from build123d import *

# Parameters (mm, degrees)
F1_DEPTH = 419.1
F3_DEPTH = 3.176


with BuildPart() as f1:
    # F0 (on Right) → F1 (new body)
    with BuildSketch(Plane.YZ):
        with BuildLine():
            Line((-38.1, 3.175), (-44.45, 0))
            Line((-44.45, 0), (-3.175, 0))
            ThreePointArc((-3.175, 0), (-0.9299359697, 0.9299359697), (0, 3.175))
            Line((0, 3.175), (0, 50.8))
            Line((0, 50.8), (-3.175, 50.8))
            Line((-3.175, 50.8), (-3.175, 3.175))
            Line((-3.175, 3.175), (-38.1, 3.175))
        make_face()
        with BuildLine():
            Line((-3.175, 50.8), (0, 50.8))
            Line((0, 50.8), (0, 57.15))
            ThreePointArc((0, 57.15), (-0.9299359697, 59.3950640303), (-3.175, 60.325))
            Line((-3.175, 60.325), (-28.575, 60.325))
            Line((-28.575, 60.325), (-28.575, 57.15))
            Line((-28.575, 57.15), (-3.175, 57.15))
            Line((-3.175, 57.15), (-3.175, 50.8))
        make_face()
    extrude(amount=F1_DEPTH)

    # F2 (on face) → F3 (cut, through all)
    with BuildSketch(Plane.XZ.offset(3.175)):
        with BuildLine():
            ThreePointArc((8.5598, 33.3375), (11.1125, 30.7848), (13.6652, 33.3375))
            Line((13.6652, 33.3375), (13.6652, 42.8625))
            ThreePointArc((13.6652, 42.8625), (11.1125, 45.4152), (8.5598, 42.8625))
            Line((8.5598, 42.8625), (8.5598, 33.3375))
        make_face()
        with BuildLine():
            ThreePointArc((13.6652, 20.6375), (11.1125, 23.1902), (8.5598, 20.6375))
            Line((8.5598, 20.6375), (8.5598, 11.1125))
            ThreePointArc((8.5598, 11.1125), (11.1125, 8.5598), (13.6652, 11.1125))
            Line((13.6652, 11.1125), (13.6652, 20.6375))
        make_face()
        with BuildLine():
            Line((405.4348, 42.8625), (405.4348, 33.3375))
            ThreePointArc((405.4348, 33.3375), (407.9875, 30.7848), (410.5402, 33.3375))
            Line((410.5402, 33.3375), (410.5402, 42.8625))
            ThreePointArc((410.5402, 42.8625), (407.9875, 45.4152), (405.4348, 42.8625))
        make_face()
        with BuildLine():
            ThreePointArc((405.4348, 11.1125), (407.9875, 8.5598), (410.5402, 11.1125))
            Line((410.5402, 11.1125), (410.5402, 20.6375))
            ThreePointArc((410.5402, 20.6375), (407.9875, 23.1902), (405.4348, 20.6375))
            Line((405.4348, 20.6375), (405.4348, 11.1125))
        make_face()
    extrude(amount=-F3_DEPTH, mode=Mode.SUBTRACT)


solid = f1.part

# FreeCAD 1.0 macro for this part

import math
import FreeCAD as App
import Part
import Sketcher
Q = App.Units.Quantity

doc = App.newDocument("Part")
params = doc.addObject("Spreadsheet::Sheet", "Params")
for row, (alias, value) in enumerate([
    ("sketch1_width", "1 in"),
    ("sketch1_radius", "0.125 in"),
    ("sketch1_width2", "1.625 in"),
    ("sketch1_height", "2.125 in"),
    ("pad1_length", "16.5 in"),
    ("sketch2_height", "0.375 in"),
], start=1):
    params.set(f"A{row}", alias)
    params.set(f"B{row}", "=" + value)
    params.setAlias(f"B{row}", alias)

body = doc.addObject("PartDesign::Body", "Body")

# Sketch on YZ plane
sketch1 = doc.addObject("Sketcher::SketchObject", "Sketch")
body.addObject(sketch1)
sketch1.AttachmentSupport = (doc.YZ_Plane, [""])
sketch1.MapMode = "FlatFace"
sketch1.addGeometry([
    Part.LineSegment(App.Vector(-38.1, 3.2, 0), App.Vector(-44.5, 0, 0)),  # 0
    Part.LineSegment(App.Vector(-44.5, 0, 0), App.Vector(-3.2, 0, 0)),  # 1
    Part.ArcOfCircle(Part.Circle(App.Vector(-3.2, 3.2, 0), App.Vector(0, 0, 1), 3.2), math.radians(-90), math.radians(0)),  # 2
    Part.LineSegment(App.Vector(0, 3.2, 0), App.Vector(0, 57.1, 0)),  # 3
    Part.ArcOfCircle(Part.Circle(App.Vector(-3.2, 57.1, 0), App.Vector(0, 0, 1), 3.2), math.radians(0), math.radians(90)),  # 4
    Part.LineSegment(App.Vector(-3.2, 60.3, 0), App.Vector(-28.6, 60.3, 0)),  # 5
    Part.LineSegment(App.Vector(-28.6, 60.3, 0), App.Vector(-28.6, 57.1, 0)),  # 6
    Part.LineSegment(App.Vector(-28.6, 57.1, 0), App.Vector(-3.2, 57.1, 0)),  # 7
    Part.LineSegment(App.Vector(-3.2, 57.1, 0), App.Vector(-3.2, 3.2, 0)),  # 8
    Part.LineSegment(App.Vector(-3.2, 3.2, 0), App.Vector(-38.1, 3.2, 0)),  # 9
], False)
sketch1.addConstraint([
    Sketcher.Constraint("Coincident", 0, 2, 1, 1),
    Sketcher.Constraint("Tangent", 1, 2, 2, 1),
    Sketcher.Constraint("Tangent", 2, 2, 3, 1),
    Sketcher.Constraint("Tangent", 3, 2, 4, 1),
    Sketcher.Constraint("Tangent", 4, 2, 5, 1),
    Sketcher.Constraint("Coincident", 5, 2, 6, 1),
    Sketcher.Constraint("Coincident", 6, 2, 7, 1),
    Sketcher.Constraint("Coincident", 7, 2, 8, 1),
    Sketcher.Constraint("Coincident", 8, 2, 9, 1),
    Sketcher.Constraint("Coincident", 9, 2, 0, 1),
    Sketcher.Constraint("Horizontal", 1),
    Sketcher.Constraint("Vertical", 3),
    Sketcher.Constraint("Horizontal", 5),
    Sketcher.Constraint("Vertical", 6),
    Sketcher.Constraint("Horizontal", 7),
    Sketcher.Constraint("Vertical", 8),
    Sketcher.Constraint("Horizontal", 9),
    Sketcher.Constraint("Coincident", 7, 2, 4, 3),
    Sketcher.Constraint("Coincident", 8, 2, 2, 3),
    Sketcher.Constraint("PointOnObject", 0, 2, -1),
    Sketcher.Constraint("PointOnObject", 2, 2, -2),
    Sketcher.Constraint("DistanceX", 5, 2, 5, 1, Q("1 in")),
    Sketcher.Constraint("Radius", 2, Q("0.125 in")),
    Sketcher.Constraint("DistanceX", 9, 2, -1, 1, Q("1.5 in")),
    Sketcher.Constraint("DistanceX", 1, 1, 1, 2, Q("1.625 in")),
    Sketcher.Constraint("DistanceY", 3, 1, 3, 2, Q("2.125 in")),
])
sketch1.setExpression("Constraints[21]", "Params.sketch1_width")
sketch1.setExpression("Constraints[22]", "Params.sketch1_radius")
sketch1.setExpression("Constraints[24]", "Params.sketch1_width2")
sketch1.setExpression("Constraints[25]", "Params.sketch1_height")
pad1 = doc.addObject("PartDesign::Pad", "Pad")
body.addObject(pad1)
pad1.Profile = sketch1
pad1.setExpression("Length", "Params.pad1_length")

# Sketch on XZ plane
sketch2 = doc.addObject("Sketcher::SketchObject", "Sketch001")
body.addObject(sketch2)
sketch2.AttachmentSupport = (doc.XZ_Plane, [""])
sketch2.MapMode = "FlatFace"
sketch2.AttachmentOffset = App.Placement(App.Vector(0, 0, 0.125 * 25.4), App.Rotation())
sketch2.addGeometry([
    Part.ArcOfCircle(Part.Circle(App.Vector(11.1, 33.3, 0), App.Vector(0, 0, 1), 2.6), math.radians(180), math.radians(360)),  # 0
    Part.LineSegment(App.Vector(13.7, 33.3, 0), App.Vector(13.7, 42.9, 0)),  # 1
    Part.ArcOfCircle(Part.Circle(App.Vector(11.1, 42.9, 0), App.Vector(0, 0, 1), 2.6), math.radians(0), math.radians(180)),  # 2
    Part.LineSegment(App.Vector(8.6, 42.9, 0), App.Vector(8.6, 33.3, 0)),  # 3
    Part.ArcOfCircle(Part.Circle(App.Vector(11.1, 20.6, 0), App.Vector(0, 0, 1), 2.6), math.radians(0), math.radians(180)),  # 4
    Part.LineSegment(App.Vector(8.6, 20.6, 0), App.Vector(8.6, 11.1, 0)),  # 5
    Part.ArcOfCircle(Part.Circle(App.Vector(11.1, 11.1, 0), App.Vector(0, 0, 1), 2.6), math.radians(180), math.radians(360)),  # 6
    Part.LineSegment(App.Vector(13.7, 11.1, 0), App.Vector(13.7, 20.6, 0)),  # 7
    Part.LineSegment(App.Vector(405.4, 42.9, 0), App.Vector(405.4, 33.3, 0)),  # 8
    Part.ArcOfCircle(Part.Circle(App.Vector(408, 33.3, 0), App.Vector(0, 0, 1), 2.6), math.radians(180), math.radians(360)),  # 9
    Part.LineSegment(App.Vector(410.5, 33.3, 0), App.Vector(410.5, 42.9, 0)),  # 10
    Part.ArcOfCircle(Part.Circle(App.Vector(408, 42.9, 0), App.Vector(0, 0, 1), 2.6), math.radians(0), math.radians(180)),  # 11
    Part.ArcOfCircle(Part.Circle(App.Vector(408, 11.1, 0), App.Vector(0, 0, 1), 2.6), math.radians(180), math.radians(360)),  # 12
    Part.LineSegment(App.Vector(410.5, 11.1, 0), App.Vector(410.5, 20.6, 0)),  # 13
    Part.ArcOfCircle(Part.Circle(App.Vector(408, 20.6, 0), App.Vector(0, 0, 1), 2.6), math.radians(0), math.radians(180)),  # 14
    Part.LineSegment(App.Vector(405.4, 20.6, 0), App.Vector(405.4, 11.1, 0)),  # 15
], False)
sketch2.addConstraint([
    Sketcher.Constraint("Tangent", 0, 2, 1, 1),
    Sketcher.Constraint("Tangent", 1, 2, 2, 1),
    Sketcher.Constraint("Tangent", 2, 2, 3, 1),
    Sketcher.Constraint("Tangent", 3, 2, 0, 1),
    Sketcher.Constraint("Tangent", 4, 2, 5, 1),
    Sketcher.Constraint("Tangent", 5, 2, 6, 1),
    Sketcher.Constraint("Tangent", 6, 2, 7, 1),
    Sketcher.Constraint("Tangent", 7, 2, 4, 1),
    Sketcher.Constraint("Tangent", 8, 2, 9, 1),
    Sketcher.Constraint("Tangent", 9, 2, 10, 1),
    Sketcher.Constraint("Tangent", 10, 2, 11, 1),
    Sketcher.Constraint("Tangent", 11, 2, 8, 1),
    Sketcher.Constraint("Tangent", 12, 2, 13, 1),
    Sketcher.Constraint("Tangent", 13, 2, 14, 1),
    Sketcher.Constraint("Tangent", 14, 2, 15, 1),
    Sketcher.Constraint("Tangent", 15, 2, 12, 1),
    Sketcher.Constraint("Vertical", 1),
    Sketcher.Constraint("Vertical", 3),
    Sketcher.Constraint("Vertical", 5),
    Sketcher.Constraint("Vertical", 7),
    Sketcher.Constraint("Vertical", 8),
    Sketcher.Constraint("Vertical", 10),
    Sketcher.Constraint("Vertical", 13),
    Sketcher.Constraint("Vertical", 15),
    Sketcher.Constraint("Equal", 2, 4),
    Sketcher.Constraint("Equal", 6, 9),
    Sketcher.Constraint("Equal", 11, 12),
    Sketcher.Constraint("Horizontal", 0, 3, 9, 3),
    Sketcher.Constraint("Horizontal", 2, 3, 11, 3),
    Sketcher.Constraint("Horizontal", 6, 3, 12, 3),
    Sketcher.Constraint("Horizontal", 4, 3, 14, 3),
    Sketcher.Constraint("Vertical", 2, 3, 4, 3),
    Sketcher.Constraint("Vertical", 11, 3, 12, 3),
    Sketcher.Constraint("Equal", 3, 5),
    Sketcher.Constraint("Radius", 0, Q("0.1005 in")),
    Sketcher.Constraint("DistanceY", 4, 3, 0, 3, Q("0.5 in")),
    Sketcher.Constraint("DistanceY", 1, 1, 1, 2, Q("0.375 in")),
    Sketcher.Constraint("DistanceX", -1, 1, 0, 3, Q("0.4375 in")),
    Sketcher.Constraint("DistanceY", -1, 1, 0, 3, Q("1.3125 in")),
    Sketcher.Constraint("DistanceX", -1, 1, 9, 3, Q("16.0625 in")),
])
sketch2.setExpression("Constraints[36]", "Params.sketch2_height")
pocket1 = doc.addObject("PartDesign::Pocket", "Pocket")
body.addObject(pocket1)
pocket1.Profile = sketch2
pocket1.Type = "ThroughAll"

doc.recompute()
